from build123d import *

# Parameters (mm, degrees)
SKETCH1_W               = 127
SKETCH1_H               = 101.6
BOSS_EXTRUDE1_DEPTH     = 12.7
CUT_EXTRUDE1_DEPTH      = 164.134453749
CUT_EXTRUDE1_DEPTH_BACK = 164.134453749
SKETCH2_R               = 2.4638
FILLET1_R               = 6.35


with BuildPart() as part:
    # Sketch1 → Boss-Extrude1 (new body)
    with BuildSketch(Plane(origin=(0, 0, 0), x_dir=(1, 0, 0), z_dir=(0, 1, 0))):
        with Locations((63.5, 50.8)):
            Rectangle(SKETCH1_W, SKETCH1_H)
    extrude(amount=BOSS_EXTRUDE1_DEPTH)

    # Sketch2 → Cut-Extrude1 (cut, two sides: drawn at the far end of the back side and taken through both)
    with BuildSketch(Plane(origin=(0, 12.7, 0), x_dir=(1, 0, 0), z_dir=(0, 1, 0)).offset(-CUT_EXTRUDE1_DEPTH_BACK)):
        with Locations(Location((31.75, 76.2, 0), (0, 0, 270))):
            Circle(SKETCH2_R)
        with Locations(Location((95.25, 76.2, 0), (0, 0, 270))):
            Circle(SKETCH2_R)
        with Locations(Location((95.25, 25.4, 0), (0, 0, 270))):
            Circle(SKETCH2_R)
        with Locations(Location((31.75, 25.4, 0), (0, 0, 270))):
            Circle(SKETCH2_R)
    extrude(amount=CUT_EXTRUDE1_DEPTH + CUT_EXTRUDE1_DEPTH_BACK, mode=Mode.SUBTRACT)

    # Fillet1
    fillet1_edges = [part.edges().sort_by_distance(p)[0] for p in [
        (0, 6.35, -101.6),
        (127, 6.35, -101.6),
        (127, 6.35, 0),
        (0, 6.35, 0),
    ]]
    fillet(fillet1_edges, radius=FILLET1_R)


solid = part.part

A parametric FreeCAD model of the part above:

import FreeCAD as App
import Part
import Sketcher

V = App.Vector
Q = App.Units.Quantity


def edges_at(feature, points):
    """Names of the edges that pass closest to the given points."""
    edges = feature.Shape.Edges
    near = lambda p: min(range(len(edges)), key=lambda i: edges[i].distToShape(Part.Vertex(*p))[0])
    return sorted({f"Edge{near(p) + 1}" for p in points})


def add_polygon(sketch, points):
    """Adds a closed chain of lines whose ends are joined by coincident constraints."""
    first, n = sketch.GeometryCount, len(points)
    for a, b in zip(points, points[1:] + points[:1]):
        sketch.addGeometry(Part.LineSegment(App.Vector(*a, 0), App.Vector(*b, 0)), False)
    for i in range(n):
        sketch.addConstraint(Sketcher.Constraint("Coincident", first + i, 2, first + (i + 1) % n, 1))

doc = App.newDocument("Part")
body = doc.addObject("PartDesign::Body", "Body")

sketch1 = body.newObject("Sketcher::SketchObject", "Sketch")
sketch1.AttachmentSupport = (doc.getObject("XZ_Plane"), [""])
sketch1.MapMode = "FlatFace"
add_polygon(sketch1, [(0, -102), (0, 0), (127, 0), (127, -102)])
sketch1.addConstraint(Sketcher.Constraint("Vertical", 0))
sketch1.addConstraint(Sketcher.Constraint("Horizontal", 1))
sketch1.addConstraint(Sketcher.Constraint("Vertical", 2))
sketch1.addConstraint(Sketcher.Constraint("Horizontal", 3))
sketch1.addConstraint(Sketcher.Constraint("Coincident", 0, 2, -1, 1))
sketch1.addConstraint(Sketcher.Constraint("DistanceX", 1, 1, 1, 2, Q("5 in")))
sketch1.addConstraint(Sketcher.Constraint("DistanceY", 0, 1, 0, 2, Q("4 in")))
pad1 = body.newObject("PartDesign::Pad", "Pad")
pad1.Profile = sketch1
pad1.Length = Q("0.5 in")
pad1.Reversed = True

sketch2 = body.newObject("Sketcher::SketchObject", "Sketch001")
sketch2.AttachmentSupport = (doc.getObject("XZ_Plane"), [""])
sketch2.MapMode = "FlatFace"
sketch2.AttachmentOffset = App.Placement(V(0, 0, -0.5 * 25.4), App.Rotation())
sketch2.addGeometry(Part.Circle(V(31.8, -76.2, 0), V(0, 0, 1), 2.5), False)
sketch2.addGeometry(Part.Circle(V(95.2, -76.2, 0), V(0, 0, 1), 2.5), False)
sketch2.addGeometry(Part.Circle(V(95.2, -25.4, 0), V(0, 0, 1), 2.5), False)
sketch2.addGeometry(Part.Circle(V(31.8, -25.4, 0), V(0, 0, 1), 2.5), False)
sketch2.addConstraint(Sketcher.Constraint("Equal", 0, 1))
sketch2.addConstraint(Sketcher.Constraint("Equal", 1, 2))
sketch2.addConstraint(Sketcher.Constraint("Equal", 2, 3))
sketch2.addConstraint(Sketcher.Constraint("Horizontal", 0, 3, 1, 3))
sketch2.addConstraint(Sketcher.Constraint("Horizontal", 2, 3, 3, 3))
sketch2.addConstraint(Sketcher.Constraint("Vertical", 1, 3, 2, 3))
sketch2.addConstraint(Sketcher.Constraint("Vertical", 0, 3, 3, 3))
sketch2.addConstraint(Sketcher.Constraint("Diameter", 0, Q("0.194 in")))
sketch2.addConstraint(Sketcher.Constraint("DistanceY", 0, 3, -1, 1, Q("3 in")))
sketch2.addConstraint(Sketcher.Constraint("DistanceY", 2, 3, -1, 1, Q("1 in")))
sketch2.addConstraint(Sketcher.Constraint("DistanceX", 0, 3, 1, 3, Q("2.5 in")))
sketch2.addConstraint(Sketcher.Constraint("DistanceX", -1, 1, 0, 3, Q("1.25 in")))
pocket1 = body.newObject("PartDesign::Pocket", "Pocket")
pocket1.Profile = sketch2
pocket1.Type = "ThroughAll"
pocket1.Midplane = True
doc.recompute()

fillet = body.newObject("PartDesign::Fillet", "Fillet")
fillet.Base = (pocket1, edges_at(pocket1, [
    (0, 6.35, -101.6),
    (127, 6.35, -101.6),
    (127, 6.35, 0),
    (0, 6.35, 0),
]))
fillet.Radius = Q("0.25 in")

doc.recompute()
